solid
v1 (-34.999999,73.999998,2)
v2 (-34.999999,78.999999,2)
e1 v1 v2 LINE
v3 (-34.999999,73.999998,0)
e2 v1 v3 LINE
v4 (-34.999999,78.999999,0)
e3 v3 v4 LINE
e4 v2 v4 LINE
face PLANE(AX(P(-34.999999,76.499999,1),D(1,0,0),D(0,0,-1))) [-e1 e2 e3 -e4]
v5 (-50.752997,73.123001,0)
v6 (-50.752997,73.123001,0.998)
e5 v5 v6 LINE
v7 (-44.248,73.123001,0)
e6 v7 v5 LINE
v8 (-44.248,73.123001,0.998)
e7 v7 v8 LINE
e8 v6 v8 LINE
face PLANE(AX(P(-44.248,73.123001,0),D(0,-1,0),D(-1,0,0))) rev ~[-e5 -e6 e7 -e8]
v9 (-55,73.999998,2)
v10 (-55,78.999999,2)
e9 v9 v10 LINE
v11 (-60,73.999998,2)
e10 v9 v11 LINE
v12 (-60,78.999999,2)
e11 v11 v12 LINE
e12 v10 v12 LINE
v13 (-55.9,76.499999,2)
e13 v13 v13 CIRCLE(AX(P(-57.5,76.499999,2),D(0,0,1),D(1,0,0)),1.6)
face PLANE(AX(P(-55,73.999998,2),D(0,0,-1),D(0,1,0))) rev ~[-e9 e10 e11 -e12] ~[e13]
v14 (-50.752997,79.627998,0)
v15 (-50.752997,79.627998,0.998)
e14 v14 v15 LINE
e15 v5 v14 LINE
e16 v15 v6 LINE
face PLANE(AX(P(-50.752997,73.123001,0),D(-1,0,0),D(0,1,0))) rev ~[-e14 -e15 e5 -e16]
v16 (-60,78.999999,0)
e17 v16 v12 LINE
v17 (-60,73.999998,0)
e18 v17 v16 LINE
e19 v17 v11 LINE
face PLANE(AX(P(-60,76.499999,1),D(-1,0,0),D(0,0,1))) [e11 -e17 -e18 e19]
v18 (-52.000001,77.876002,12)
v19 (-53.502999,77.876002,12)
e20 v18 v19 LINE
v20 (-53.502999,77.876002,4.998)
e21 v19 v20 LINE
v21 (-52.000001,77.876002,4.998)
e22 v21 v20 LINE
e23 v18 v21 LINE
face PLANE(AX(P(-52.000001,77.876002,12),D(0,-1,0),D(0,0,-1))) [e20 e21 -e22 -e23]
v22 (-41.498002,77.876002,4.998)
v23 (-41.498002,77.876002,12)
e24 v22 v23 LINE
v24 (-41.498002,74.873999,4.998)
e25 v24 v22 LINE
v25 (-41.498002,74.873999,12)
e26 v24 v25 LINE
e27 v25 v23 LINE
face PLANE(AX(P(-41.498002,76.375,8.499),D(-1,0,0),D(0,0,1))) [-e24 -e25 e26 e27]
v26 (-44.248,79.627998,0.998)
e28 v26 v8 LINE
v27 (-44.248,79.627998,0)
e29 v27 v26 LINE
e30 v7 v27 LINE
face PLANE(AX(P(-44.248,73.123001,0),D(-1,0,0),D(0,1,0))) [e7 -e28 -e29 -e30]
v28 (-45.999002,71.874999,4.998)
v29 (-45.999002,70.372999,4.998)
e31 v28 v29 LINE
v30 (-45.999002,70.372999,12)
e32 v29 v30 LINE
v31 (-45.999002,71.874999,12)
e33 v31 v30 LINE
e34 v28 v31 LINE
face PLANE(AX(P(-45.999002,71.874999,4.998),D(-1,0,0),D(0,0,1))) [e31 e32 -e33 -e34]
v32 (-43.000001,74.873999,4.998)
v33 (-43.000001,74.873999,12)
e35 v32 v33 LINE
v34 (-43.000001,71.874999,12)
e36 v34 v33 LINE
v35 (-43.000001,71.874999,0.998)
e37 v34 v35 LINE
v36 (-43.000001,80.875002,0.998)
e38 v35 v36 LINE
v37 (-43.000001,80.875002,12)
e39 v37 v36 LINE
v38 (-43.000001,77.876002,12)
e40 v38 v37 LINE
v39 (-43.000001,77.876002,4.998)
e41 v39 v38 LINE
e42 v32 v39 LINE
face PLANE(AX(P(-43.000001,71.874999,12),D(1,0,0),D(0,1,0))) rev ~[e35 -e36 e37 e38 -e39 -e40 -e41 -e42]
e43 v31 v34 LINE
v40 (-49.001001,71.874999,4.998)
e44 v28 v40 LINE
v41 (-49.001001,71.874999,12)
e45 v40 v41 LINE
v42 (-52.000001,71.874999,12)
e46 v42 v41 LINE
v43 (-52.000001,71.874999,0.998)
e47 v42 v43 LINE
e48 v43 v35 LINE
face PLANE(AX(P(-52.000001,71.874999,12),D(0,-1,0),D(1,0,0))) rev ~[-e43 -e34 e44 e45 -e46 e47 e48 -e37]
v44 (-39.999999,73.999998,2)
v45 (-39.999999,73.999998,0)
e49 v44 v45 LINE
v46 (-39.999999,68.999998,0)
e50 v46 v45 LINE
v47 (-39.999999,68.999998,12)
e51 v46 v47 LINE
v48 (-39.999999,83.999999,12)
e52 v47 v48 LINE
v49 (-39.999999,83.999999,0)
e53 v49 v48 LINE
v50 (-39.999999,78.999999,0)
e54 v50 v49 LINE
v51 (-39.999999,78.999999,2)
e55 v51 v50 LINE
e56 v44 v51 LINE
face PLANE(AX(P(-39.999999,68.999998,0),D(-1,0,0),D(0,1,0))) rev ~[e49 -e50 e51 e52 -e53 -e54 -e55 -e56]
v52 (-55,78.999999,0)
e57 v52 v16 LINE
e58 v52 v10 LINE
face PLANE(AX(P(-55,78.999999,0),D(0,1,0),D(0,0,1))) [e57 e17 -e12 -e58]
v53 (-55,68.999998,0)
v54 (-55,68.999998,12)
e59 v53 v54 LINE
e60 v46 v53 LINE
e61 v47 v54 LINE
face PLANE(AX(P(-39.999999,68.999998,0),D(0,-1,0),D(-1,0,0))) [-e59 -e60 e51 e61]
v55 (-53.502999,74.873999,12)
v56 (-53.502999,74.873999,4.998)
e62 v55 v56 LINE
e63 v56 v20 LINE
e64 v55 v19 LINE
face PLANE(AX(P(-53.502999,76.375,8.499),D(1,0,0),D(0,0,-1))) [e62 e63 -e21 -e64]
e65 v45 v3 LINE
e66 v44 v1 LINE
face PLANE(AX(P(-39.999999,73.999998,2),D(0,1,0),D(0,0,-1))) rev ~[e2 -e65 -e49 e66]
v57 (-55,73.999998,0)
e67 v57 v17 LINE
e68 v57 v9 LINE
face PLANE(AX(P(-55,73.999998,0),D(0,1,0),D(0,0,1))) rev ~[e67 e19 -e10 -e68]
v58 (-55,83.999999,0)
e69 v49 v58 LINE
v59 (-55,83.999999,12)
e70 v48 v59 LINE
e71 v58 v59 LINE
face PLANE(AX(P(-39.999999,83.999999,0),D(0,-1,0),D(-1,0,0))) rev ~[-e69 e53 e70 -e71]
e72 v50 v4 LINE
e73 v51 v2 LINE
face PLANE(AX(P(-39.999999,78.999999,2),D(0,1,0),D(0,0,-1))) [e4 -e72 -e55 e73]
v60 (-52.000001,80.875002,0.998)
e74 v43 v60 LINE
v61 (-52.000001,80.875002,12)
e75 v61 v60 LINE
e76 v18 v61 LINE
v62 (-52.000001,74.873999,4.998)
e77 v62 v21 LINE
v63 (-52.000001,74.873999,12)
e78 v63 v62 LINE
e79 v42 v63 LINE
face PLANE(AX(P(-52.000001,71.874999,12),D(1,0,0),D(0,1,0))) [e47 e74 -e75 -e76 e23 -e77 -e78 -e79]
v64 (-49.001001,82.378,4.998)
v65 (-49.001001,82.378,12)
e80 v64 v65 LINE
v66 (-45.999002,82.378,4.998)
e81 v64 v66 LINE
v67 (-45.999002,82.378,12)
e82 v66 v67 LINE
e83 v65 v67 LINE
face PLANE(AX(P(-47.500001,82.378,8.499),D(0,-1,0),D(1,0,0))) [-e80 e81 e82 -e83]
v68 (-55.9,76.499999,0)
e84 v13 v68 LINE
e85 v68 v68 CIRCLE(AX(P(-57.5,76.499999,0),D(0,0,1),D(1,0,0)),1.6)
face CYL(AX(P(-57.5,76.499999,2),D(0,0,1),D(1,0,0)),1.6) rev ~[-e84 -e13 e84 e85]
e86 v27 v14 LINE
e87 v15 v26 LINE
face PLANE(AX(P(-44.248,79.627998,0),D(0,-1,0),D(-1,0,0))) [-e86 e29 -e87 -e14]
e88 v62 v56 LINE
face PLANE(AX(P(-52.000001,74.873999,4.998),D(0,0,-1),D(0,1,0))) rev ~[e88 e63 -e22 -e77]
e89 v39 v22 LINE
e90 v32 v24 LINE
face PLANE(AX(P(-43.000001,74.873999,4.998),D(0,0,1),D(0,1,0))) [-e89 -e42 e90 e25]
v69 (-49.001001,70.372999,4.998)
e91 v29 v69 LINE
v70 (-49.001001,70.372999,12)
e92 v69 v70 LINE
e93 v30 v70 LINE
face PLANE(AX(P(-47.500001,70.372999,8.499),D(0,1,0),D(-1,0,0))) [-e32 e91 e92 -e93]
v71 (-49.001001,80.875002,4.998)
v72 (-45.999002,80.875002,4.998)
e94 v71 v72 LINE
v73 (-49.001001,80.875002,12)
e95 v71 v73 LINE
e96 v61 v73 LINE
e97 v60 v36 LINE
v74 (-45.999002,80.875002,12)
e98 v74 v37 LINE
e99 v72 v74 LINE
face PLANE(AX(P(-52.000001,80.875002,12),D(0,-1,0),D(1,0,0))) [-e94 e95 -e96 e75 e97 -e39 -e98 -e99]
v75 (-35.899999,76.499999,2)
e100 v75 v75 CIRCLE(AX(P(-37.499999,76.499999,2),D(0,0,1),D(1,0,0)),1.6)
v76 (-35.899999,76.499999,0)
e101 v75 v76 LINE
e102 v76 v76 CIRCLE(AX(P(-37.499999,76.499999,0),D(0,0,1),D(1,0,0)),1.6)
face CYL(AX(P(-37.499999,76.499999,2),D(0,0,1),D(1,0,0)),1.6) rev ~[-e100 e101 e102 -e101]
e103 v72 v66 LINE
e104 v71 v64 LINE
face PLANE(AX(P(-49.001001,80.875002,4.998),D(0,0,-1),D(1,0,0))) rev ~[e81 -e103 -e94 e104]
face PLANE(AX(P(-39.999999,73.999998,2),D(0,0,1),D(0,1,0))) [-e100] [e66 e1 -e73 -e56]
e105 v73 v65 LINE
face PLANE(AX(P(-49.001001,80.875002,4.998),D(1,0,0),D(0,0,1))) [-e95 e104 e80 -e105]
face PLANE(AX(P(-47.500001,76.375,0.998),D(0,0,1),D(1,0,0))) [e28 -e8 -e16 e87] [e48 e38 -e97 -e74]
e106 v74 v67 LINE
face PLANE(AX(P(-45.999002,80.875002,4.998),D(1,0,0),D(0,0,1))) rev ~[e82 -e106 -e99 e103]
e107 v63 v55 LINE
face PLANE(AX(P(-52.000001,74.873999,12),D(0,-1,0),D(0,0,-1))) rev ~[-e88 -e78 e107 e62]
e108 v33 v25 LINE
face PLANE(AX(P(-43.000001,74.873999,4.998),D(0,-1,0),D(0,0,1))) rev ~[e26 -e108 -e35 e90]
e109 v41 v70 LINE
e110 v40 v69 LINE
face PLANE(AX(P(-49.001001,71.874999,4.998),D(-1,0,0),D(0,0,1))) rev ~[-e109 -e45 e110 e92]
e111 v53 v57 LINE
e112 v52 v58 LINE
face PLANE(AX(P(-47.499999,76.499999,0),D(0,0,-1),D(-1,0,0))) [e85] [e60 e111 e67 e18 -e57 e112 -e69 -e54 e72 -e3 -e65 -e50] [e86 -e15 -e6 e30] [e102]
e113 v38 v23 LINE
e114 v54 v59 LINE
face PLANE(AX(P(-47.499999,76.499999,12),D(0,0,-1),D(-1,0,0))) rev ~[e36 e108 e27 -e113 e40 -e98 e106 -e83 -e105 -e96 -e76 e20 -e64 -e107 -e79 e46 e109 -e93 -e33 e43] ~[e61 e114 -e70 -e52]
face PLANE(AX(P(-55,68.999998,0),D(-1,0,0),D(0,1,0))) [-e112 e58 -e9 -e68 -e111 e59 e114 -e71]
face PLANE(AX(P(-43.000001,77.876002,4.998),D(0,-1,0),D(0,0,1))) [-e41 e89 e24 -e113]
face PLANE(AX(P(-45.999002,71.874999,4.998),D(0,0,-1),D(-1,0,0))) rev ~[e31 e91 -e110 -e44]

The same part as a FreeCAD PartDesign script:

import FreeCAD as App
import Part
import Sketcher

V = App.Vector
Q = App.Units.Quantity

doc = App.newDocument("Part")
body = doc.addObject("PartDesign::Body", "Body")

sketch1 = body.newObject("Sketcher::SketchObject", "Sketch")
sketch1.AttachmentSupport = (doc.getObject("XY_Plane"), [""])
sketch1.MapMode = "FlatFace"
sketch1.addGeometry(Part.LineSegment(V(-40, 84, 0), V(-40, 69, 0)), False)
sketch1.addGeometry(Part.LineSegment(V(-40, 69, 0), V(-55, 69, 0)), False)
sketch1.addGeometry(Part.LineSegment(V(-55, 69, 0), V(-55, 84, 0)), False)
sketch1.addGeometry(Part.LineSegment(V(-55, 84, 0), V(-40, 84, 0)), False)
sketch1.addConstraint(Sketcher.Constraint("Coincident", 0, 2, 1, 1))
sketch1.addConstraint(Sketcher.Constraint("Coincident", 1, 2, 2, 1))
sketch1.addConstraint(Sketcher.Constraint("Coincident", 2, 2, 3, 1))
sketch1.addConstraint(Sketcher.Constraint("Coincident", 3, 2, 0, 1))
sketch1.addConstraint(Sketcher.Constraint("Vertical", 0))
sketch1.addConstraint(Sketcher.Constraint("Horizontal", 1))
sketch1.addConstraint(Sketcher.Constraint("Vertical", 2))
sketch1.addConstraint(Sketcher.Constraint("Horizontal", 3))
sketch1.addConstraint(Sketcher.Constraint("Equal", 3, 0))
sketch1.addConstraint(Sketcher.Constraint("DistanceX", 1, 2, 1, 1, Q("15.000001 mm")))
sketch1.addConstraint(Sketcher.Constraint("DistanceX", 0, 2, -1, 1, Q("39.999999 mm")))
sketch1.addConstraint(Sketcher.Constraint("DistanceY", -1, 1, 0, 2, Q("68.999998 mm")))
pad1 = body.newObject("PartDesign::Pad", "Pad")
pad1.Profile = sketch1
pad1.Length = 12

sketch2 = body.newObject("Sketcher::SketchObject", "Sketch001")
sketch2.AttachmentSupport = (doc.getObject("XY_Plane"), [""])
sketch2.MapMode = "FlatFace"
sketch2.AttachmentOffset = App.Placement(V(0, 0, 12), App.Rotation())
sketch2.addGeometry(Part.LineSegment(V(-52, 81, 0), V(-52, 72, 0)), False)
sketch2.addGeometry(Part.LineSegment(V(-52, 72, 0), V(-43, 72, 0)), False)
sketch2.addGeometry(Part.LineSegment(V(-43, 72, 0), V(-43, 81, 0)), False)
sketch2.addGeometry(Part.LineSegment(V(-43, 81, 0), V(-52, 81, 0)), False)
sketch2.addConstraint(Sketcher.Constraint("Coincident", 0, 2, 1, 1))
sketch2.addConstraint(Sketcher.Constraint("Coincident", 1, 2, 2, 1))
sketch2.addConstraint(Sketcher.Constraint("Coincident", 2, 2, 3, 1))
sketch2.addConstraint(Sketcher.Constraint("Coincident", 3, 2, 0, 1))
sketch2.addConstraint(Sketcher.Constraint("Vertical", 0))
sketch2.addConstraint(Sketcher.Constraint("Horizontal", 1))
sketch2.addConstraint(Sketcher.Constraint("Vertical", 2))
sketch2.addConstraint(Sketcher.Constraint("Horizontal", 3))
sketch2.addConstraint(Sketcher.Constraint("DistanceX", 1, 1, 1, 2, Q("9 mm")))
sketch2.addConstraint(Sketcher.Constraint("DistanceX", 0, 2, -1, 1, Q("52.000001 mm")))
sketch2.addConstraint(Sketcher.Constraint("DistanceY", -1, 1, 0, 2, Q("71.874999 mm")))
sketch2.addConstraint(Sketcher.Constraint("DistanceY", -1, 1, 2, 2, Q("80.875002 mm")))
pocket1 = body.newObject("PartDesign::Pocket", "Pocket")
pocket1.Profile = sketch2
pocket1.Length = 11.002

sketch3 = body.newObject("Sketcher::SketchObject", "Sketch002")
sketch3.AttachmentSupport = (doc.getObject("XY_Plane"), [""])
sketch3.MapMode = "FlatFace"
sketch3.addGeometry(Part.LineSegment(V(-44, 80, 0), V(-44, 73, 0)), False)
sketch3.addGeometry(Part.LineSegment(V(-44, 73, 0), V(-51, 73, 0)), False)
sketch3.addGeometry(Part.LineSegment(V(-51, 73, 0), V(-51, 80, 0)), False)
sketch3.addGeometry(Part.LineSegment(V(-51, 80, 0), V(-44, 80, 0)), False)
sketch3.addConstraint(Sketcher.Constraint("Coincident", 0, 2, 1, 1))
sketch3.addConstraint(Sketcher.Constraint("Coincident", 1, 2, 2, 1))
sketch3.addConstraint(Sketcher.Constraint("Coincident", 2, 2, 3, 1))
sketch3.addConstraint(Sketcher.Constraint("Coincident", 3, 2, 0, 1))
sketch3.addConstraint(Sketcher.Constraint("Vertical", 0))
sketch3.addConstraint(Sketcher.Constraint("Horizontal", 1))
sketch3.addConstraint(Sketcher.Constraint("Vertical", 2))
sketch3.addConstraint(Sketcher.Constraint("Horizontal", 3))
sketch3.addConstraint(Sketcher.Constraint("Equal", 3, 0))
sketch3.addConstraint(Sketcher.Constraint("DistanceX", 0, 2, -1, 1, Q("44.248 mm")))
sketch3.addConstraint(Sketcher.Constraint("DistanceY", -1, 1, 0, 2, Q("73.123001 mm")))
sketch3.addConstraint(Sketcher.Constraint("DistanceY", -1, 1, 2, 2, Q("79.627998 mm")))
pocket2 = body.newObject("PartDesign::Pocket", "Pocket001")
pocket2.Profile = sketch3
pocket2.Type = "ThroughAll"
pocket2.Reversed = True

sketch4 = body.newObject("Sketcher::SketchObject", "Sketch003")
sketch4.AttachmentSupport = (doc.getObject("XZ_Plane"), [""])
sketch4.MapMode = "FlatFace"
sketch4.AttachmentOffset = App.Placement(V(0, 0, -71.874999), App.Rotation())
sketch4.addGeometry(Part.LineSegment(V(-46, 12, 0), V(-46, 5, 0)), False)
sketch4.addGeometry(Part.LineSegment(V(-46, 5, 0), V(-49, 5, 0)), False)
sketch4.addGeometry(Part.LineSegment(V(-49, 5, 0), V(-49, 12, 0)), False)
sketch4.addGeometry(Part.LineSegment(V(-49, 12, 0), V(-46, 12, 0)), False)
sketch4.addConstraint(Sketcher.Constraint("Coincident", 0, 2, 1, 1))
sketch4.addConstraint(Sketcher.Constraint("Coincident", 1, 2, 2, 1))
sketch4.addConstraint(Sketcher.Constraint("Coincident", 2, 2, 3, 1))
sketch4.addConstraint(Sketcher.Constraint("Coincident", 3, 2, 0, 1))
sketch4.addConstraint(Sketcher.Constraint("Vertical", 0))
sketch4.addConstraint(Sketcher.Constraint("Horizontal", 1))
sketch4.addConstraint(Sketcher.Constraint("Vertical", 2))
sketch4.addConstraint(Sketcher.Constraint("Horizontal", 3))
sketch4.addConstraint(Sketcher.Constraint("DistanceY", -1, 1, 2, 2, Q("12 mm")))
sketch4.addConstraint(Sketcher.Constraint("DistanceX", 1, 2, 1, 1, Q("3.001999 mm")))
sketch4.addConstraint(Sketcher.Constraint("DistanceY", 0, 2, 0, 1, Q("7.002 mm")))
sketch4.addConstraint(Sketcher.Constraint("DistanceX", 0, 2, -1, 1, Q("45.999002 mm")))
pocket3 = body.newObject("PartDesign::Pocket", "Pocket002")
pocket3.Profile = sketch4
pocket3.Length = 1.502
pocket3.Reversed = True

sketch5 = body.newObject("Sketcher::SketchObject", "Sketch004")
sketch5.AttachmentSupport = (doc.getObject("YZ_Plane"), [""])
sketch5.MapMode = "FlatFace"
sketch5.AttachmentOffset = App.Placement(V(0, 0, -43.000001), App.Rotation())
sketch5.addGeometry(Part.LineSegment(V(77.9, 5, 0), V(74.9, 5, 0)), False)
sketch5.addGeometry(Part.LineSegment(V(74.9, 5, 0), V(74.9, 12, 0)), False)
sketch5.addGeometry(Part.LineSegment(V(74.9, 12, 0), V(77.9, 12, 0)), False)
sketch5.addGeometry(Part.LineSegment(V(77.9, 12, 0), V(77.9, 5, 0)), False)
sketch5.addConstraint(Sketcher.Constraint("Coincident", 0, 2, 1, 1))
sketch5.addConstraint(Sketcher.Constraint("Coincident", 1, 2, 2, 1))
sketch5.addConstraint(Sketcher.Constraint("Coincident", 2, 2, 3, 1))
sketch5.addConstraint(Sketcher.Constraint("Coincident", 3, 2, 0, 1))
sketch5.addConstraint(Sketcher.Constraint("Horizontal", 0))
sketch5.addConstraint(Sketcher.Constraint("Vertical", 1))
sketch5.addConstraint(Sketcher.Constraint("Horizontal", 2))
sketch5.addConstraint(Sketcher.Constraint("Vertical", 3))
sketch5.addConstraint(Sketcher.Constraint("DistanceY", -1, 1, 1, 2, Q("12 mm")))
sketch5.addConstraint(Sketcher.Constraint("DistanceY", 1, 1, 1, 2, Q("7.002 mm")))
sketch5.addConstraint(Sketcher.Constraint("DistanceX", -1, 1, 0, 2, Q("74.873999 mm")))
sketch5.addConstraint(Sketcher.Constraint("DistanceX", -1, 1, 2, 2, Q("77.876002 mm")))
pocket4 = body.newObject("PartDesign::Pocket", "Pocket003")
pocket4.Profile = sketch5
pocket4.Length = 1.502
pocket4.Reversed = True

sketch6 = body.newObject("Sketcher::SketchObject", "Sketch005")
sketch6.AttachmentSupport = (doc.getObject("YZ_Plane"), [""])
sketch6.MapMode = "FlatFace"
sketch6.AttachmentOffset = App.Placement(V(0, 0, -52.000001), App.Rotation())
sketch6.addGeometry(Part.LineSegment(V(77.9, 12, 0), V(74.9, 12, 0)), False)
sketch6.addGeometry(Part.LineSegment(V(74.9, 12, 0), V(74.9, 5, 0)), False)
sketch6.addGeometry(Part.LineSegment(V(74.9, 5, 0), V(77.9, 5, 0)), False)
sketch6.addGeometry(Part.LineSegment(V(77.9, 5, 0), V(77.9, 12, 0)), False)
sketch6.addConstraint(Sketcher.Constraint("Coincident", 0, 2, 1, 1))
sketch6.addConstraint(Sketcher.Constraint("Coincident", 1, 2, 2, 1))
sketch6.addConstraint(Sketcher.Constraint("Coincident", 2, 2, 3, 1))
sketch6.addConstraint(Sketcher.Constraint("Coincident", 3, 2, 0, 1))
sketch6.addConstraint(Sketcher.Constraint("Horizontal", 0))
sketch6.addConstraint(Sketcher.Constraint("Vertical", 1))
sketch6.addConstraint(Sketcher.Constraint("Horizontal", 2))
sketch6.addConstraint(Sketcher.Constraint("Vertical", 3))
sketch6.addConstraint(Sketcher.Constraint("DistanceY", -1, 1, 0, 2, Q("12 mm")))
sketch6.addConstraint(Sketcher.Constraint("DistanceY", 1, 2, 1, 1, Q("7.002 mm")))
sketch6.addConstraint(Sketcher.Constraint("DistanceX", -1, 1, 0, 2, Q("74.873999 mm")))
sketch6.addConstraint(Sketcher.Constraint("DistanceX", -1, 1, 2, 2, Q("77.876002 mm")))
pocket5 = body.newObject("PartDesign::Pocket", "Pocket004")
pocket5.Profile = sketch6
pocket5.Length = 1.502998

sketch7 = body.newObject("Sketcher::SketchObject", "Sketch006")
sketch7.AttachmentSupport = (doc.getObject("XZ_Plane"), [""])
sketch7.MapMode = "FlatFace"
sketch7.AttachmentOffset = App.Placement(V(0, 0, -80.875002), App.Rotation())
sketch7.addGeometry(Part.LineSegment(V(-49, 12, 0), V(-49, 5, 0)), False)
sketch7.addGeometry(Part.LineSegment(V(-49, 5, 0), V(-46, 5, 0)), False)
sketch7.addGeometry(Part.LineSegment(V(-46, 5, 0), V(-46, 12, 0)), False)
sketch7.addGeometry(Part.LineSegment(V(-46, 12, 0), V(-49, 12, 0)), False)
sketch7.addConstraint(Sketcher.Constraint("Coincident", 0, 2, 1, 1))
sketch7.addConstraint(Sketcher.Constraint("Coincident", 1, 2, 2, 1))
sketch7.addConstraint(Sketcher.Constraint("Coincident", 2, 2, 3, 1))
sketch7.addConstraint(Sketcher.Constraint("Coincident", 3, 2, 0, 1))
sketch7.addConstraint(Sketcher.Constraint("Vertical", 0))
sketch7.addConstraint(Sketcher.Constraint("Horizontal", 1))
sketch7.addConstraint(Sketcher.Constraint("Vertical", 2))
sketch7.addConstraint(Sketcher.Constraint("Horizontal", 3))
sketch7.addConstraint(Sketcher.Constraint("DistanceY", -1, 1, 2, 2, Q("12 mm")))
sketch7.addConstraint(Sketcher.Constraint("DistanceX", 1, 1, 1, 2, Q("3.001999 mm")))
sketch7.addConstraint(Sketcher.Constraint("DistanceY", 0, 2, 0, 1, Q("7.002 mm")))
sketch7.addConstraint(Sketcher.Constraint("DistanceX", 0, 2, -1, 1, Q("49.001001 mm")))
pocket6 = body.newObject("PartDesign::Pocket", "Pocket005")
pocket6.Profile = sketch7
pocket6.Length = 1.502998

sketch8 = body.newObject("Sketcher::SketchObject", "Sketch007")
sketch8.AttachmentSupport = (doc.getObject("YZ_Plane"), [""])
sketch8.MapMode = "FlatFace"
sketch8.AttachmentOffset = App.Placement(V(0, 0, -55), App.Rotation())
sketch8.addGeometry(Part.LineSegment(V(79, 0, 0), V(74, 0, 0)), False)
sketch8.addGeometry(Part.LineSegment(V(74, 0, 0), V(74, 2, 0)), False)
sketch8.addGeometry(Part.LineSegment(V(74, 2, 0), V(79, 2, 0)), False)
sketch8.addGeometry(Part.LineSegment(V(79, 2, 0), V(79, 0, 0)), False)
sketch8.addConstraint(Sketcher.Constraint("Coincident", 0, 2, 1, 1))
sketch8.addConstraint(Sketcher.Constraint("Coincident", 1, 2, 2, 1))
sketch8.addConstraint(Sketcher.Constraint("Coincident", 2, 2, 3, 1))
sketch8.addConstraint(Sketcher.Constraint("Coincident", 3, 2, 0, 1))
sketch8.addConstraint(Sketcher.Constraint("Horizontal", 0))
sketch8.addConstraint(Sketcher.Constraint("Vertical", 1))
sketch8.addConstraint(Sketcher.Constraint("Horizontal", 2))
sketch8.addConstraint(Sketcher.Constraint("Vertical", 3))
sketch8.addConstraint(Sketcher.Constraint("PointOnObject", 0, 2, -1))
sketch8.addConstraint(Sketcher.Constraint("DistanceX", 0, 2, 0, 1, Q("5.000001 mm")))
sketch8.addConstraint(Sketcher.Constraint("DistanceY", 1, 1, 1, 2, Q("2 mm")))
sketch8.addConstraint(Sketcher.Constraint("DistanceX", -1, 1, 0, 2, Q("73.999998 mm")))
pad2 = body.newObject("PartDesign::Pad", "Pad001")
pad2.Profile = sketch8
pad2.Length = 5
pad2.Reversed = True

sketch9 = body.newObject("Sketcher::SketchObject", "Sketch008")
sketch9.AttachmentSupport = (doc.getObject("YZ_Plane"), [""])
sketch9.MapMode = "FlatFace"
sketch9.AttachmentOffset = App.Placement(V(0, 0, -39.999999), App.Rotation())
sketch9.addGeometry(Part.LineSegment(V(79, 2, 0), V(74, 2, 0)), False)
sketch9.addGeometry(Part.LineSegment(V(74, 2, 0), V(74, 0, 0)), False)
sketch9.addGeometry(Part.LineSegment(V(74, 0, 0), V(79, 0, 0)), False)
sketch9.addGeometry(Part.LineSegment(V(79, 0, 0), V(79, 2, 0)), False)
sketch9.addConstraint(Sketcher.Constraint("Coincident", 0, 2, 1, 1))
sketch9.addConstraint(Sketcher.Constraint("Coincident", 1, 2, 2, 1))
sketch9.addConstraint(Sketcher.Constraint("Coincident", 2, 2, 3, 1))
sketch9.addConstraint(Sketcher.Constraint("Coincident", 3, 2, 0, 1))
sketch9.addConstraint(Sketcher.Constraint("Horizontal", 0))
sketch9.addConstraint(Sketcher.Constraint("Vertical", 1))
sketch9.addConstraint(Sketcher.Constraint("Horizontal", 2))
sketch9.addConstraint(Sketcher.Constraint("Vertical", 3))
sketch9.addConstraint(Sketcher.Constraint("PointOnObject", 1, 2, -1))
sketch9.addConstraint(Sketcher.Constraint("DistanceX", 0, 2, 0, 1, Q("5.000001 mm")))
sketch9.addConstraint(Sketcher.Constraint("DistanceY", 1, 2, 1, 1, Q("2 mm")))
sketch9.addConstraint(Sketcher.Constraint("DistanceX", -1, 1, 0, 2, Q("73.999998 mm")))
pad3 = body.newObject("PartDesign::Pad", "Pad002")
pad3.Profile = sketch9
pad3.Length = 5

sketch10 = body.newObject("Sketcher::SketchObject", "Sketch009")
sketch10.AttachmentSupport = (doc.getObject("XY_Plane"), [""])
sketch10.MapMode = "FlatFace"
sketch10.AttachmentOffset = App.Placement(V(0, 0, 2), App.Rotation())
sketch10.addGeometry(Part.Circle(V(-37.5, 76.5, 0), V(0, 0, 1), 1.6), False)
sketch10.addGeometry(Part.Circle(V(-57.5, 76.5, 0), V(0, 0, 1), 1.6), False)
sketch10.addConstraint(Sketcher.Constraint("Equal", 0, 1))
sketch10.addConstraint(Sketcher.Constraint("Horizontal", 0, 3, 1, 3))
sketch10.addConstraint(Sketcher.Constraint("Diameter", 0, Q("3.2 mm")))
sketch10.addConstraint(Sketcher.Constraint("DistanceX", 1, 3, 0, 3, Q("20.000001 mm")))
sketch10.addConstraint(Sketcher.Constraint("DistanceX", 0, 3, -1, 1, Q("37.499999 mm")))
sketch10.addConstraint(Sketcher.Constraint("DistanceY", -1, 1, 0, 3, Q("76.499999 mm")))
pocket7 = body.newObject("PartDesign::Pocket", "Pocket006")
pocket7.Profile = sketch10
pocket7.Length = 5

doc.recompute()
